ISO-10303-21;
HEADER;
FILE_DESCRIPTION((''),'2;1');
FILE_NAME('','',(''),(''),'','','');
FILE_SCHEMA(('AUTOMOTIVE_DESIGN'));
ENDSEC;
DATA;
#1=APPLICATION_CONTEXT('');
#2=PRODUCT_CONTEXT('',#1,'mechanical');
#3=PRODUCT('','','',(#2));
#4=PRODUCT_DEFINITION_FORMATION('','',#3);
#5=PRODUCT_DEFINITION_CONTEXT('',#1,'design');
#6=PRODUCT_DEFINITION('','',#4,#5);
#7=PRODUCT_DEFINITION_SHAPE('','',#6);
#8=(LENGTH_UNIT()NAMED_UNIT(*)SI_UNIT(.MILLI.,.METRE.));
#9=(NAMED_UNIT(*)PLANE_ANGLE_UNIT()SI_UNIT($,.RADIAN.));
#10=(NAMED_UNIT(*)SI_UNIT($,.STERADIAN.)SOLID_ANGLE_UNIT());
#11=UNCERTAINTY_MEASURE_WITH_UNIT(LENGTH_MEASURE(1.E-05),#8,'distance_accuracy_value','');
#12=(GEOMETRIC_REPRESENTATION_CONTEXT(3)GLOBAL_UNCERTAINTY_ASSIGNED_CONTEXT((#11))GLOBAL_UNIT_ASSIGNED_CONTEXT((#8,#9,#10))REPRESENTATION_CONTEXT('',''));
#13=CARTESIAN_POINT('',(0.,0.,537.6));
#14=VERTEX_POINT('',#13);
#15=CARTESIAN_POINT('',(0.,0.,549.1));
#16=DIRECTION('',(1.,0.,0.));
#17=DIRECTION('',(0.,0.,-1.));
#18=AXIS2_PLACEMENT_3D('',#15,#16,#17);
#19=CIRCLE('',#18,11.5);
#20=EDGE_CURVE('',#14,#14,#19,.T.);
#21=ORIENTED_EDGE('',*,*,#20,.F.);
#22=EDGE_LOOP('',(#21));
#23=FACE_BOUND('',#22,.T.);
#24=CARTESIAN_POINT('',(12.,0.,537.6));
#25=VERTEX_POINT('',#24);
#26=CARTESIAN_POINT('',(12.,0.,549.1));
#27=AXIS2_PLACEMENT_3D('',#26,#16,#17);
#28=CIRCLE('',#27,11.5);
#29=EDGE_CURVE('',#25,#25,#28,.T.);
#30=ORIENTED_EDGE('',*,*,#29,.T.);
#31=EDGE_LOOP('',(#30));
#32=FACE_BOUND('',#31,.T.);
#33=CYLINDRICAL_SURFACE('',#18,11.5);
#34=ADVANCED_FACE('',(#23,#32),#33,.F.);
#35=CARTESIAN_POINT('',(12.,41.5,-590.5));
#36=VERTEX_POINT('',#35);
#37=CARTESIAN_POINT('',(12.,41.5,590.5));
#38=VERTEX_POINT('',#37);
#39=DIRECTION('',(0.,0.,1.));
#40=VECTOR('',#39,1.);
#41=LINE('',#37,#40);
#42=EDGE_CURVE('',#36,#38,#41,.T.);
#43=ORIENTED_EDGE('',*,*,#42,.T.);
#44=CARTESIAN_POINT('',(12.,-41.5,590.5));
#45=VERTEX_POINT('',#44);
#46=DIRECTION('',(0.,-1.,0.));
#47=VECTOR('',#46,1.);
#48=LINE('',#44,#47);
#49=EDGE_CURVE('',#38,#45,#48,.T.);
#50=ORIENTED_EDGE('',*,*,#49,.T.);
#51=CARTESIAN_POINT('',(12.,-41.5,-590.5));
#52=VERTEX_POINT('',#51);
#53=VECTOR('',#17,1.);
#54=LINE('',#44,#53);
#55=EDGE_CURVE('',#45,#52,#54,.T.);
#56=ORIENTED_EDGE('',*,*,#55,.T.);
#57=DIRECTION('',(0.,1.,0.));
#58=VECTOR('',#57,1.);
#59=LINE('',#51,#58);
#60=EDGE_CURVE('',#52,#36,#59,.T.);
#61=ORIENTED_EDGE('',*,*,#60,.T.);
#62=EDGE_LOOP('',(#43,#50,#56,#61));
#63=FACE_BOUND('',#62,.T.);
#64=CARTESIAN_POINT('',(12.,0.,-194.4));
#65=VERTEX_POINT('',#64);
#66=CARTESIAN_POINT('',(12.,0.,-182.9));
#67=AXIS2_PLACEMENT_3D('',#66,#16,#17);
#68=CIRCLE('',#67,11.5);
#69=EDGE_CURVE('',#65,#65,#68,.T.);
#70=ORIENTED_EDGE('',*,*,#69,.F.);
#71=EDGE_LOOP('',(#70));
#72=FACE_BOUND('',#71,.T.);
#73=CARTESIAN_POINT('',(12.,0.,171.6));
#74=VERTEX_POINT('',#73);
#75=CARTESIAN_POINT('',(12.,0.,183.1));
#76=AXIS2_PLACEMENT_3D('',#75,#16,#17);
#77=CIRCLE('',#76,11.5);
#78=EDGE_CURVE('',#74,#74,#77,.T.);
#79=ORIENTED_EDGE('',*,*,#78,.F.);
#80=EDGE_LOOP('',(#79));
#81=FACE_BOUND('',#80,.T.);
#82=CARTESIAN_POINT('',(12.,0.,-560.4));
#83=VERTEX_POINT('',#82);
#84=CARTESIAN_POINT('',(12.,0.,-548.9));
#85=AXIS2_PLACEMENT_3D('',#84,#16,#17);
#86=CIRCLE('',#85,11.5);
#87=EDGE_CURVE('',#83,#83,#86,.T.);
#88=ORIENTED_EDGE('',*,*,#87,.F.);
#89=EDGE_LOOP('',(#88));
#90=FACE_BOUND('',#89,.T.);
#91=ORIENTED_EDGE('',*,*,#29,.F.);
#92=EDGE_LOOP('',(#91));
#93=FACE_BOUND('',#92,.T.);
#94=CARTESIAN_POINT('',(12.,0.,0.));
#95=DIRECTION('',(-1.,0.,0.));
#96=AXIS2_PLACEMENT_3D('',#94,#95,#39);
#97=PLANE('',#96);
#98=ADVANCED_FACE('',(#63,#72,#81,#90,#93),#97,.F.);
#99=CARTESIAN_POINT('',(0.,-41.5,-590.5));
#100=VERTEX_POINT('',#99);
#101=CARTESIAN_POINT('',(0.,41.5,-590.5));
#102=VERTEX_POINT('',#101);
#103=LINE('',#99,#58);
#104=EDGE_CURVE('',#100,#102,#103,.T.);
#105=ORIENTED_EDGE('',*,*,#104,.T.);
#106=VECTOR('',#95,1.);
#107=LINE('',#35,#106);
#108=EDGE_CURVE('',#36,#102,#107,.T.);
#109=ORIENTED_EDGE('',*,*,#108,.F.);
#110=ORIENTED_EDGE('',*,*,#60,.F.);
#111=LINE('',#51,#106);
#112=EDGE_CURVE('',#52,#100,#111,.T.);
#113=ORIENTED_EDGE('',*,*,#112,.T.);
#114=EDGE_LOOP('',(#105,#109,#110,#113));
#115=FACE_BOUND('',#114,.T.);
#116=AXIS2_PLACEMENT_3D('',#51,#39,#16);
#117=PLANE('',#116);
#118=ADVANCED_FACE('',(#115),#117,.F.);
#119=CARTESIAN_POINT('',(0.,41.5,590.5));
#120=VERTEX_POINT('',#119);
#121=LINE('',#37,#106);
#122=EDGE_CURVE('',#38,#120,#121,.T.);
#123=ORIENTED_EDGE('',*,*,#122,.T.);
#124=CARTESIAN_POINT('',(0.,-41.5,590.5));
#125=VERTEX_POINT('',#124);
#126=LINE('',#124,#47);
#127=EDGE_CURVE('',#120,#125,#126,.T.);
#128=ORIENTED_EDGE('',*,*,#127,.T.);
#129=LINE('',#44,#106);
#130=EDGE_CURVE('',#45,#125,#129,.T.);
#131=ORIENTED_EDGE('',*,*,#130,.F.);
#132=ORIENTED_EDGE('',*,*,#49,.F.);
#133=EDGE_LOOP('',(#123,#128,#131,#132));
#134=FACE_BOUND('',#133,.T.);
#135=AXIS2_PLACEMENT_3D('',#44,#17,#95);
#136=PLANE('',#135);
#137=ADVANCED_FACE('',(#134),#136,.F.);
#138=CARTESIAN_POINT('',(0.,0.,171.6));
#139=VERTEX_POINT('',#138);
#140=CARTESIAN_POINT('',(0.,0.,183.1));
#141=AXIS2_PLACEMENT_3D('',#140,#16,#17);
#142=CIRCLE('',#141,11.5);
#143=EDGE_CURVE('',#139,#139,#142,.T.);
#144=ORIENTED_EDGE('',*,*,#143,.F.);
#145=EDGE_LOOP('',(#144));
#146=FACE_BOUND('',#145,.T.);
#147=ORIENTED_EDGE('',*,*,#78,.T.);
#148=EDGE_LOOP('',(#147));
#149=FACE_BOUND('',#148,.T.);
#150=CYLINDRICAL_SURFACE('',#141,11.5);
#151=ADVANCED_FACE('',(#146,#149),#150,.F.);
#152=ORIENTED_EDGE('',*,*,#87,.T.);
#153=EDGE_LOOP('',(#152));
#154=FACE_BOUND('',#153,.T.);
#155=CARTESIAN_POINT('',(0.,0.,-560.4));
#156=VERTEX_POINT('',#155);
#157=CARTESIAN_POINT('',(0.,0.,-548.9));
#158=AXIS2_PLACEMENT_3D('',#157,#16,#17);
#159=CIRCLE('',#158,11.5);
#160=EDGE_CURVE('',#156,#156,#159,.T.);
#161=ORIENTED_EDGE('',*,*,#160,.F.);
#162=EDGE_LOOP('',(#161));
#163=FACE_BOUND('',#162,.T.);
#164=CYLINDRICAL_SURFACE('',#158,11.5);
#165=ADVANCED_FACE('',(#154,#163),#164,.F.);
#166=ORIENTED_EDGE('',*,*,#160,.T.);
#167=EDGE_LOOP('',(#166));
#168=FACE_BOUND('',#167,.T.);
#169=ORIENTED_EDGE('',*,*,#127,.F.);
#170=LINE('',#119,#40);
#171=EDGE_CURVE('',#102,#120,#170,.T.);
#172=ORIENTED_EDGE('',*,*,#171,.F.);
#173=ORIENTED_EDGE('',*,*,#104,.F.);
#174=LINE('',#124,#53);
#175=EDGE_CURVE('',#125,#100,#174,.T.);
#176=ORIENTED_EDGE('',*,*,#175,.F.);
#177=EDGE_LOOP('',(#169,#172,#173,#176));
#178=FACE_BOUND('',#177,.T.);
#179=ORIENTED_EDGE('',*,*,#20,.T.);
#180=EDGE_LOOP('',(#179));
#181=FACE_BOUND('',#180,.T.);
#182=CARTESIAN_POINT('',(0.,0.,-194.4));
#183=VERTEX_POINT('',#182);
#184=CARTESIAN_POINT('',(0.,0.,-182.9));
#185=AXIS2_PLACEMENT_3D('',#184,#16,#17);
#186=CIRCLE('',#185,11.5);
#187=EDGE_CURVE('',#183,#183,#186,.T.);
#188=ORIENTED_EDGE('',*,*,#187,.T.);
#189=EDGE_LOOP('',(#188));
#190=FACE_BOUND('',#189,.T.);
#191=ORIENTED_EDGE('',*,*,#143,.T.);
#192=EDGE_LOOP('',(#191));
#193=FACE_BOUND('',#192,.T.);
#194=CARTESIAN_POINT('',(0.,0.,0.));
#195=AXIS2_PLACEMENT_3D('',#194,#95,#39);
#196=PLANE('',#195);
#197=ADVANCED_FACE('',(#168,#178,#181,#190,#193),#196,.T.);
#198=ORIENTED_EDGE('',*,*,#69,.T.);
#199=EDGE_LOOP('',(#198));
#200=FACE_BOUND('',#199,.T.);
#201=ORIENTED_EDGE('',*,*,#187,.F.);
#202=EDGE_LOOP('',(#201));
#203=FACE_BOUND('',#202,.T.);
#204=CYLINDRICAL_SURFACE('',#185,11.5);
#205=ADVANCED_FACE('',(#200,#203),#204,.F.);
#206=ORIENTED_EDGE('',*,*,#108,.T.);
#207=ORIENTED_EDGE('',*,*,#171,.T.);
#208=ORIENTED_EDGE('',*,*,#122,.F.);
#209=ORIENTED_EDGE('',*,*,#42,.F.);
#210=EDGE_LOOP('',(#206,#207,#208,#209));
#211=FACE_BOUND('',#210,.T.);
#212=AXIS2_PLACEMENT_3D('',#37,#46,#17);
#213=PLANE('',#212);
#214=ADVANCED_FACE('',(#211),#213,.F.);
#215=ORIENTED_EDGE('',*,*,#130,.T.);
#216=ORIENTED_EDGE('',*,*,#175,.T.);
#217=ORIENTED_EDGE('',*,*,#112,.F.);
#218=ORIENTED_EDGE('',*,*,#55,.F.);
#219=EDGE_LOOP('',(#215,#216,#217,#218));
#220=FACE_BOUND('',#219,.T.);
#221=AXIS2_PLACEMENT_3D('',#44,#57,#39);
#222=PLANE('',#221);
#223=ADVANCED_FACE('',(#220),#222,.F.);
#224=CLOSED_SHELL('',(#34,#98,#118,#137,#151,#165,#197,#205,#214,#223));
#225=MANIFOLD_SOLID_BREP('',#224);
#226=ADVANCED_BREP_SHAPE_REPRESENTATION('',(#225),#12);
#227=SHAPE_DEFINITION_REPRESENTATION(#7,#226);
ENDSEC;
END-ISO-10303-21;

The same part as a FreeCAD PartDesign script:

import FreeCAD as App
import Part
import Sketcher
Q = App.Units.Quantity


def add_polygon(sketch, points):
    """Adds a closed chain of lines whose ends are joined by coincident constraints."""
    first, n = sketch.GeometryCount, len(points)
    for a, b in zip(points, points[1:] + points[:1]):
        sketch.addGeometry(Part.LineSegment(App.Vector(*a, 0), App.Vector(*b, 0)), False)
    for i in range(n):
        sketch.addConstraint(Sketcher.Constraint("Coincident", first + i, 2, first + (i + 1) % n, 1))

doc = App.newDocument("Part")
body = doc.addObject("PartDesign::Body", "Body")

# Sketch on YZ plane
sketch1 = body.newObject("Sketcher::SketchObject", "Sketch")
sketch1.AttachmentSupport = (doc.getObject("YZ_Plane"), [""])
sketch1.MapMode = "FlatFace"
add_polygon(sketch1, [(41.5, 590.5), (-41.5, 590.5), (-41.5, -590.5), (41.5, -590.5)])  # lines 0-3
sketch1.addConstraint(Sketcher.Constraint("Horizontal", 0))
sketch1.addConstraint(Sketcher.Constraint("Vertical", 1))
sketch1.addConstraint(Sketcher.Constraint("Horizontal", 2))
sketch1.addConstraint(Sketcher.Constraint("Vertical", 3))
sketch1.addConstraint(Sketcher.Constraint("Symmetric", 0, 2, 2, 2, -1, 1))
sketch1.addConstraint(Sketcher.Constraint("DistanceX", 0, 2, 0, 1, Q("83 mm")))
sketch1.addConstraint(Sketcher.Constraint("DistanceY", 1, 2, 1, 1, Q("1181 mm")))
pad1 = body.newObject("PartDesign::Pad", "Pad")
pad1.Profile = sketch1
pad1.Length = 12

# Sketch on YZ plane
sketch2 = body.newObject("Sketcher::SketchObject", "Sketch001")
sketch2.AttachmentSupport = (doc.getObject("YZ_Plane"), [""])
sketch2.MapMode = "FlatFace"
sketch2.AttachmentOffset = App.Placement(App.Vector(0, 0, 12), App.Rotation())
sketch2.addGeometry(Part.Circle(App.Vector(0, 549.1, 0), App.Vector(0, 0, 1), 11.5), False)
sketch2.addConstraint(Sketcher.Constraint("PointOnObject", 0, 3, -2))
sketch2.addConstraint(Sketcher.Constraint("Diameter", 0, Q("23 mm")))
sketch2.addConstraint(Sketcher.Constraint("DistanceY", -1, 1, 0, 3, Q("549.1 mm")))
pocket1 = body.newObject("PartDesign::Pocket", "Pocket")
pocket1.Profile = sketch2
pocket1.Length = 12
doc.recompute()

linearpattern = body.newObject("PartDesign::LinearPattern", "LinearPattern")
linearpattern.Originals = [pocket1]
linearpattern.Direction = (doc.getObject("Z_Axis"), [""])
linearpattern.Mode = "offset"
linearpattern.Offset = 366
linearpattern.Occurrences = 4
linearpattern.Reversed = True
body.Tip = linearpattern

doc.recompute()
